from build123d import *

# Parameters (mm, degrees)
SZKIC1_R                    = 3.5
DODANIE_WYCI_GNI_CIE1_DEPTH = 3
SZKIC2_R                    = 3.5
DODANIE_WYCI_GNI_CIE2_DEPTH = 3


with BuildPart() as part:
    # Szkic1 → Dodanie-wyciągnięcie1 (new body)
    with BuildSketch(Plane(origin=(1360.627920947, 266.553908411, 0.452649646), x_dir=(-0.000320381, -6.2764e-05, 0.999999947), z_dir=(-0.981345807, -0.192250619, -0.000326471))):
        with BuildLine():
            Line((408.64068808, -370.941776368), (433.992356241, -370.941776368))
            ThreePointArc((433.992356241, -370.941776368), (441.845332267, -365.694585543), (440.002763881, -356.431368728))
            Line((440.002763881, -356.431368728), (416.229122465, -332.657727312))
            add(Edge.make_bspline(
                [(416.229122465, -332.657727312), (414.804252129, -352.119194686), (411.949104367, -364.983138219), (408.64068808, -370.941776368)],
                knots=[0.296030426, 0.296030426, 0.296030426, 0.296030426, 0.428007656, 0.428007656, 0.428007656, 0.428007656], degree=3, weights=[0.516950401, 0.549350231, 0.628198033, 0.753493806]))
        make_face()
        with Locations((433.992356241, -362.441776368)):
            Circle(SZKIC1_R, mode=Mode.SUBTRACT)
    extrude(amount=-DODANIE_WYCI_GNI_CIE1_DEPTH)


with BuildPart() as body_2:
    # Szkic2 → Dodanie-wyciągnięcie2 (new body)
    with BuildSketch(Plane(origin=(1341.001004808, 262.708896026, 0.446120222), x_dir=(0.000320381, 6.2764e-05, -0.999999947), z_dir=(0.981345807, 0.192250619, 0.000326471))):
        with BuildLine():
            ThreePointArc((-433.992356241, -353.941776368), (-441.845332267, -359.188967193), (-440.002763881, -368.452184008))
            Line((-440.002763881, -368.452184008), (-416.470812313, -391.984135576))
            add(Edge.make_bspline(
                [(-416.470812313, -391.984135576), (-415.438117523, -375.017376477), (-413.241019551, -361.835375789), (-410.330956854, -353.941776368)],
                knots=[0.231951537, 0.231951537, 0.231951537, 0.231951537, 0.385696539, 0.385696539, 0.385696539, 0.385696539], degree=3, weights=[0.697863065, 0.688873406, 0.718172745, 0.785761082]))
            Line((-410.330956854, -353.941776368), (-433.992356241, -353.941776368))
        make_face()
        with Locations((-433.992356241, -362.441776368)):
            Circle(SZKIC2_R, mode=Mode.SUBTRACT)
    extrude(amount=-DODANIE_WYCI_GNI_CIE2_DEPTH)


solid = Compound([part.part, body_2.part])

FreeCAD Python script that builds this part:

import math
import FreeCAD as App
import Part
import Sketcher
from FreeCAD import Vector
Q = App.Units.Quantity

doc = App.newDocument("Part")
body = doc.addObject("PartDesign::Body", "Body")

# Sketch on an angled plane
sketch1 = doc.addObject("Sketcher::SketchObject", "Sketch")
body.addObject(sketch1)
sketch1.Placement = App.Placement(Vector(1360.627921, 266.553908, 0.45265), App.Rotation(Vector(-0.000320381, -0.000062764, 0.999999947), Vector(-0.192250629, 0.98134586, 0), Vector(-0.981345807, -0.192250619, -0.000326471), "ZXY"))
sketch1.addGeometry(Part.LineSegment(Vector(408.640688, -370.941777, 0), Vector(433.992356, -370.941777, 0)), False)
sketch1.addGeometry(Part.ArcOfCircle(Part.Circle(Vector(433.992356, -362.441777, 0), Vector(0, 0, 1), 8.5), math.radians(-90), math.radians(45)), False)
sketch1.addGeometry(Part.LineSegment(Vector(440.002764, -356.431369, 0), Vector(416.229123, -332.657728, 0)), False)
sketch1.addGeometry(Part.BSplineCurve([Vector(416.229123, -332.657728, 0), Vector(414.804252, -352.119195, 0), Vector(411.949105, -364.983138, 0), Vector(408.640688, -370.941777, 0)], [4, 4], [0.296030426, 0.428007656], False, 3, [0.516950401, 0.549350231, 0.628198033, 0.753493806], False), False)
sketch1.addGeometry(Part.Circle(Vector(433.992356, -362.441777, 0), Vector(0, 0, 1), 3.5), False)
sketch1.addConstraint(Sketcher.Constraint("Block", 3))
sketch1.addConstraint(Sketcher.Constraint("Tangent", 0, 2, 1, 1))
sketch1.addConstraint(Sketcher.Constraint("Tangent", 1, 2, 2, 1))
sketch1.addConstraint(Sketcher.Constraint("Coincident", 2, 2, 3, 1))
sketch1.addConstraint(Sketcher.Constraint("Coincident", 3, 2, 0, 1))
sketch1.addConstraint(Sketcher.Constraint("Horizontal", 0))
sketch1.addConstraint(Sketcher.Constraint("Coincident", 4, 3, 1, 3))
sketch1.addConstraint(Sketcher.Constraint("Diameter", 4, 7.0))
sketch1.addConstraint(Sketcher.Constraint("Radius", 1, 8.5))
sketch1.addConstraint(Sketcher.Constraint("Angle", 2, Q("135 deg")))
pad1 = doc.addObject("PartDesign::Pad", "Pad")
body.addObject(pad1)
pad1.Profile = sketch1
pad1.Length = 3
pad1.Reversed = True
body2 = doc.addObject("PartDesign::Body", "Body001")

# Sketch on an angled plane
sketch2 = doc.addObject("Sketcher::SketchObject", "Sketch001")
body2.addObject(sketch2)
sketch2.Placement = App.Placement(Vector(1341.001005, 262.708896, 0.44612), App.Rotation(Vector(0.000320381, 0.000062764, -0.999999947), Vector(-0.192250629, 0.98134586, 0), Vector(0.981345807, 0.192250619, 0.000326471), "ZXY"))
sketch2.addGeometry(Part.ArcOfCircle(Part.Circle(Vector(-433.992356, -362.441777, 0), Vector(0, 0, 1), 8.5), math.radians(90), math.radians(225)), False)
sketch2.addGeometry(Part.LineSegment(Vector(-440.002764, -368.452184, 0), Vector(-416.470813, -391.984136, 0)), False)
sketch2.addGeometry(Part.BSplineCurve([Vector(-416.470813, -391.984136, 0), Vector(-415.438118, -375.017377, 0), Vector(-413.24102, -361.835376, 0), Vector(-410.330957, -353.941777, 0)], [4, 4], [0.231951537, 0.385696539], False, 3, [0.697863065, 0.688873406, 0.718172745, 0.785761082], False), False)
sketch2.addGeometry(Part.LineSegment(Vector(-410.330957, -353.941777, 0), Vector(-433.992356, -353.941777, 0)), False)
sketch2.addGeometry(Part.Circle(Vector(-433.992356, -362.441777, 0), Vector(0, 0, 1), 3.5), False)
sketch2.addConstraint(Sketcher.Constraint("Block", 2))
sketch2.addConstraint(Sketcher.Constraint("Tangent", 0, 2, 1, 1))
sketch2.addConstraint(Sketcher.Constraint("Coincident", 1, 2, 2, 1))
sketch2.addConstraint(Sketcher.Constraint("Coincident", 2, 2, 3, 1))
sketch2.addConstraint(Sketcher.Constraint("Tangent", 3, 2, 0, 1))
sketch2.addConstraint(Sketcher.Constraint("Horizontal", 3))
sketch2.addConstraint(Sketcher.Constraint("Coincident", 4, 3, 0, 3))
sketch2.addConstraint(Sketcher.Constraint("Diameter", 4, 7.0))
sketch2.addConstraint(Sketcher.Constraint("Radius", 0, 8.5))
sketch2.addConstraint(Sketcher.Constraint("Angle", 1, Q("-45 deg")))
pad2 = doc.addObject("PartDesign::Pad", "Pad001")
body2.addObject(pad2)
pad2.Profile = sketch2
pad2.Length = 3
pad2.Reversed = True

doc.recompute()
